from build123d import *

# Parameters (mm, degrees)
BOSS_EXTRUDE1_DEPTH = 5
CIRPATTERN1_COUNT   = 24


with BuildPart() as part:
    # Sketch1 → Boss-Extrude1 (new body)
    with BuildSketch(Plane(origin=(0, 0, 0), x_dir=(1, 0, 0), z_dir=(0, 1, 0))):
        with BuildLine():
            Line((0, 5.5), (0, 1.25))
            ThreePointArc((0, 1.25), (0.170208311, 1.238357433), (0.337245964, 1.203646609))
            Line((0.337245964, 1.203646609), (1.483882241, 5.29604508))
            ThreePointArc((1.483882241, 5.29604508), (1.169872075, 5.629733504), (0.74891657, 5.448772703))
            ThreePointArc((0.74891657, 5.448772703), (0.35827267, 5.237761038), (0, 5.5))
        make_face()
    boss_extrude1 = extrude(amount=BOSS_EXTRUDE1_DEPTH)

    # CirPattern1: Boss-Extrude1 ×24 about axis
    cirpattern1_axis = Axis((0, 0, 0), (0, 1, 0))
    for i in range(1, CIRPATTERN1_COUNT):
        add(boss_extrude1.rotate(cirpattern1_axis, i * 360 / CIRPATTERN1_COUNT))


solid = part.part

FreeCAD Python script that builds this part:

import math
import FreeCAD as App
import Part
import Sketcher
Q = App.Units.Quantity

doc = App.newDocument("Part")
body = doc.addObject("PartDesign::Body", "Body")

sketch1 = body.newObject("Sketcher::SketchObject", "Sketch")
sketch1.AttachmentSupport = (doc.getObject("XZ_Plane"), [""])
sketch1.MapMode = "FlatFace"
sketch1.addGeometry([
    Part.LineSegment(App.Vector(0, -5.5, 0), App.Vector(0, -1.25, 0)),
    Part.ArcOfCircle(Part.Circle(App.Vector(0, 0, 0), App.Vector(0, 0, 1), 1.25), math.radians(-90), math.radians(-74.35)),
    Part.LineSegment(App.Vector(0.34, -1.2, 0), App.Vector(1.48, -5.3, 0)),
    Part.ArcOfCircle(Part.Circle(App.Vector(1.09, -5.24, 0), App.Vector(0, 0, 1), 0.4), math.radians(-148), math.radians(-8)),
    Part.ArcOfCircle(Part.Circle(App.Vector(0.39, -5.65, 0), App.Vector(0, 0, 1), 0.42), math.radians(29), math.radians(158)),
], False)
sketch1.addConstraint([
    Sketcher.Constraint("Coincident", 0, 2, 1, 1),
    Sketcher.Constraint("Coincident", 1, 2, 2, 1),
    Sketcher.Constraint("Coincident", 2, 2, 3, 2),
    Sketcher.Constraint("Coincident", 3, 1, 4, 1),
    Sketcher.Constraint("Coincident", 4, 2, 0, 1),
    Sketcher.Constraint("Vertical", 0),
    Sketcher.Constraint("Coincident", 1, 3, -1, 1),
    Sketcher.Constraint("PointOnObject", 0, 2, -2),
    Sketcher.Constraint("Radius", 1, Q("1.25 mm")),
    Sketcher.Constraint("DistanceY", 0, 1, 0, 2, Q("4.25 mm")),
    Sketcher.Constraint("Distance", 2, Q("4.25 mm")),
    Sketcher.Constraint("Radius", 4, Q("0.415571 mm")),
    Sketcher.Constraint("Radius", 3, Q("0.399416 mm")),
    Sketcher.Constraint("DistanceY", 2, 2, 1, 2, Q("4.092398 mm")),
    Sketcher.Constraint("DistanceY", 3, 1, 3, 3, Q("0.210101 mm")),
    Sketcher.Constraint("DistanceX", -1, 1, 3, 3, Q("1.088609 mm")),
    Sketcher.Constraint("DistanceY", 3, 3, -1, 1, Q("5.238672 mm")),
])
pad1 = body.newObject("PartDesign::Pad", "Pad")
pad1.Profile = sketch1
pad1.Length = 5
pad1.Reversed = True
doc.recompute()

polarpattern = body.newObject("PartDesign::PolarPattern", "PolarPattern")
polarpattern.Originals = [pad1]
polarpattern.Axis = (doc.getObject("Y_Axis"), [""])
polarpattern.Angle = 360
polarpattern.Occurrences = 24
body.Tip = polarpattern

doc.recompute()
